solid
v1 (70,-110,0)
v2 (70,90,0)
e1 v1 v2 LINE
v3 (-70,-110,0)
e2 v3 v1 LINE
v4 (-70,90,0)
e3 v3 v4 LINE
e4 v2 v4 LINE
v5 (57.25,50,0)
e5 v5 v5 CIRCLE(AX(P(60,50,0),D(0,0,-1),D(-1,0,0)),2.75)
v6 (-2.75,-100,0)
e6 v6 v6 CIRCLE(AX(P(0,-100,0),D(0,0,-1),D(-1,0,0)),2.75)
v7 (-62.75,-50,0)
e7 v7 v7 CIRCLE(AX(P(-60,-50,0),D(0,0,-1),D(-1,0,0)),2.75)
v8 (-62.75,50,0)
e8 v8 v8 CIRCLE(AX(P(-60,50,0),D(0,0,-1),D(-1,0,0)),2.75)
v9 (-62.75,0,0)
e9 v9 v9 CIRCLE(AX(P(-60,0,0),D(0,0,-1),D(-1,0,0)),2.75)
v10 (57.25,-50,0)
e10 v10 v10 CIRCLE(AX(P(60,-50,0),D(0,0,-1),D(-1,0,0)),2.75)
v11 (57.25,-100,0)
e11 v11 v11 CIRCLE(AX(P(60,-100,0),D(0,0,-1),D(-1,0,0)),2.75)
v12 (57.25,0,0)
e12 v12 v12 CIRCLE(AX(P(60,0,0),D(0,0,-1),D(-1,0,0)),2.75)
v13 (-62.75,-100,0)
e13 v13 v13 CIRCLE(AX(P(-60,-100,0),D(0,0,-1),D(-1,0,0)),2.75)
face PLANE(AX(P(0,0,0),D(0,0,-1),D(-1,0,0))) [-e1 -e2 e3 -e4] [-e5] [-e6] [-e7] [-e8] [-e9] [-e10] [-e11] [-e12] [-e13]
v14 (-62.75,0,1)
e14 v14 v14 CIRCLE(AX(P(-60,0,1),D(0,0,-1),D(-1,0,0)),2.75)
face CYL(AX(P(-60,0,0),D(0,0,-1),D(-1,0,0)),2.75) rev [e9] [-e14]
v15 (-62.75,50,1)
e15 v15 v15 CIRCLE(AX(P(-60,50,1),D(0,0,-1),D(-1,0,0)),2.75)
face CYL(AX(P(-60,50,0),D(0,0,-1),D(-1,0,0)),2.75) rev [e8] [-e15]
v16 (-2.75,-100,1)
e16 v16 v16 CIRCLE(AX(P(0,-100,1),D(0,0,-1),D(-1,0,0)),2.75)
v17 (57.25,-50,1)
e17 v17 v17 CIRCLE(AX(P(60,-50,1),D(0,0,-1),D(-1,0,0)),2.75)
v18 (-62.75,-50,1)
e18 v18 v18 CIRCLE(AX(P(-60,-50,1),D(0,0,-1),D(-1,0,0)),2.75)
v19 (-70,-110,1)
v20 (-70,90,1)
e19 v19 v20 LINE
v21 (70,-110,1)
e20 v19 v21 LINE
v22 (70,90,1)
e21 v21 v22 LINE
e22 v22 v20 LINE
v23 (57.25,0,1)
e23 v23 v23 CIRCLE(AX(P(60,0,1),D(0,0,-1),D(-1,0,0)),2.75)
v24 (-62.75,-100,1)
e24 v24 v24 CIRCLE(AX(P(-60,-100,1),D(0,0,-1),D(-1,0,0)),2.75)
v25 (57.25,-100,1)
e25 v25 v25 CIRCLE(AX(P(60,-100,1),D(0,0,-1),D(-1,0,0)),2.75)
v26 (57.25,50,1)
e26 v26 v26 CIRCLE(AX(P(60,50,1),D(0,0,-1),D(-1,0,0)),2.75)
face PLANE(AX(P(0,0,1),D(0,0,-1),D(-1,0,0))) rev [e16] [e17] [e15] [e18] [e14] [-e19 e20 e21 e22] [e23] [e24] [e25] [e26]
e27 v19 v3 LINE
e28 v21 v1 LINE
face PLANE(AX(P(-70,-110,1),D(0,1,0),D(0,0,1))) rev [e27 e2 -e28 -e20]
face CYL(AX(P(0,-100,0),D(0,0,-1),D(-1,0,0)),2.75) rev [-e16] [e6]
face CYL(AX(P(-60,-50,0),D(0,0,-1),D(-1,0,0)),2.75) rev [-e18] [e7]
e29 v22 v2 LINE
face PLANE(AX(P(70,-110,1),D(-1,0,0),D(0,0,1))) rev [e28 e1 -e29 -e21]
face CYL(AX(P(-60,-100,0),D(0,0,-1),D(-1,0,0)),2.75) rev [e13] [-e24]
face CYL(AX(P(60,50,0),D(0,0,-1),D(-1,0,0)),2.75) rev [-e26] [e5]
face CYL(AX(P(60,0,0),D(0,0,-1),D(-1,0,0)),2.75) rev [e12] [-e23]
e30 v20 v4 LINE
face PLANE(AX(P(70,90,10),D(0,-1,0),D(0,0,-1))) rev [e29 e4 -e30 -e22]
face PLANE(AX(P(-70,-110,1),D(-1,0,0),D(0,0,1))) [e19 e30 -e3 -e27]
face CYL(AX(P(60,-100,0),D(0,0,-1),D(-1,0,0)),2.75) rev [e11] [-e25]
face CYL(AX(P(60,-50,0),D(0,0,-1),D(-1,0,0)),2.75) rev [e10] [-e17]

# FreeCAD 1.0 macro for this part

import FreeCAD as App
import Part
import Sketcher

V = App.Vector

doc = App.newDocument("Part")
body = doc.addObject("PartDesign::Body", "Body")

# Sketch on XY plane
sketch1 = body.newObject("Sketcher::SketchObject", "Sketch")
sketch1.AttachmentSupport = (doc.getObject("XY_Plane"), [""])
sketch1.MapMode = "FlatFace"
sketch1.addGeometry([
    Part.LineSegment(V(-70, 110, 0), V(-70, -110, 0)),
    Part.LineSegment(V(-70, -110, 0), V(70, -110, 0)),
    Part.LineSegment(V(70, -110, 0), V(70, 110, 0)),
    Part.LineSegment(V(70, 110, 0), V(-70, 110, 0)),
], False)
sketch1.addConstraint([
    Sketcher.Constraint("Coincident", 0, 2, 1, 1),
    Sketcher.Constraint("Coincident", 1, 2, 2, 1),
    Sketcher.Constraint("Coincident", 2, 2, 3, 1),
    Sketcher.Constraint("Coincident", 3, 2, 0, 1),
    Sketcher.Constraint("Vertical", 0),
    Sketcher.Constraint("Horizontal", 1),
    Sketcher.Constraint("Vertical", 2),
    Sketcher.Constraint("Horizontal", 3),
    Sketcher.Constraint("Symmetric", 0, 2, 2, 2, -1, 1),
    Sketcher.Constraint("DistanceX", 1, 1, 1, 2, 140.0),
    Sketcher.Constraint("DistanceY", 0, 2, 0, 1, 220.0),
])
pad1 = body.newObject("PartDesign::Pad", "Pad")
pad1.Profile = sketch1
pad1.Length = 1

# Sketch on XY plane
sketch2 = body.newObject("Sketcher::SketchObject", "Sketch001")
sketch2.AttachmentSupport = (doc.getObject("XY_Plane"), [""])
sketch2.MapMode = "FlatFace"
sketch2.addGeometry([
    Part.Circle(V(60, 100, 0), V(0, 0, 1), 2.75),  # 0
    Part.Circle(V(0, 100, 0), V(0, 0, 1), 2.75),  # 1
    Part.Circle(V(-60, 100, 0), V(0, 0, 1), 2.75),  # 2
    Part.Circle(V(-60, 50, 0), V(0, 0, 1), 2.75),  # 3
    Part.Circle(V(-60, -50, 0), V(0, 0, 1), 2.75),  # 4
    Part.Circle(V(-60, 0, 0), V(0, 0, 1), 2.75),  # 5
    Part.Circle(V(-60, -100, 0), V(0, 0, 1), 2.75),  # 6
    Part.Circle(V(60, 50, 0), V(0, 0, 1), 2.75),  # 7
    Part.Circle(V(60, -50, 0), V(0, 0, 1), 2.75),  # 8
    Part.Circle(V(60, 0, 0), V(0, 0, 1), 2.75),  # 9
    Part.Circle(V(60, -100, 0), V(0, 0, 1), 2.75),  # 10
    Part.Circle(V(0, -100, 0), V(0, 0, 1), 2.75),  # 11
], False)
sketch2.addConstraint([
    Sketcher.Constraint("Equal", 0, 1),
    Sketcher.Constraint("Equal", 1, 2),
    Sketcher.Constraint("Equal", 2, 3),
    Sketcher.Constraint("Equal", 3, 4),
    Sketcher.Constraint("Equal", 4, 5),
    Sketcher.Constraint("Equal", 5, 6),
    Sketcher.Constraint("Equal", 6, 7),
    Sketcher.Constraint("Equal", 7, 8),
    Sketcher.Constraint("Equal", 8, 9),
    Sketcher.Constraint("Equal", 9, 10),
    Sketcher.Constraint("Equal", 10, 11),
    Sketcher.Constraint("Symmetric", 0, 3, 6, 3, -1, 1),
    Sketcher.Constraint("Symmetric", 4, 3, 7, 3, -1, 1),
    Sketcher.Constraint("Symmetric", 3, 3, 8, 3, -1, 1),
    Sketcher.Constraint("Symmetric", 5, 3, 9, 3, -1, 1),
    Sketcher.Constraint("Symmetric", 2, 3, 10, 3, -1, 1),
    Sketcher.Constraint("Symmetric", 1, 3, 11, 3, -1, 1),
    Sketcher.Constraint("Symmetric", 0, 3, 2, 3, -2),
    Sketcher.Constraint("Symmetric", 3, 3, 7, 3, -2),
    Sketcher.Constraint("PointOnObject", 1, 3, -2),
    Sketcher.Constraint("PointOnObject", 5, 3, -1),
    Sketcher.Constraint("Horizontal", 0, 3, 1, 3),
    Sketcher.Constraint("Vertical", 2, 3, 3, 3),
    Sketcher.Constraint("Vertical", 4, 3, 5, 3),
    Sketcher.Constraint("Diameter", 0, 5.5),
    Sketcher.Constraint("DistanceX", -1, 1, 0, 3, 60.0),
    Sketcher.Constraint("DistanceY", -1, 1, 0, 3, 100.0),
    Sketcher.Constraint("DistanceY", -1, 1, 3, 3, 50.0),
])
doc.recompute()
hole = body.newObject("PartDesign::Hole", "Hole")
hole.Profile = sketch2
hole.ThreadType = "None"
hole.Diameter = 5.5
hole.DepthType = "ThroughAll"
hole.Reversed = True

# Sketch on XY plane
sketch3 = body.newObject("Sketcher::SketchObject", "Sketch002")
sketch3.AttachmentSupport = (doc.getObject("XY_Plane"), [""])
sketch3.MapMode = "FlatFace"
sketch3.addGeometry([
    Part.LineSegment(V(70, 110, 0), V(70, 90, 0)),
    Part.LineSegment(V(70, 90, 0), V(-70, 90, 0)),
    Part.LineSegment(V(-70, 90, 0), V(-70, 110, 0)),
    Part.LineSegment(V(-70, 110, 0), V(70, 110, 0)),
], False)
sketch3.addConstraint([
    Sketcher.Constraint("Coincident", 0, 2, 1, 1),
    Sketcher.Constraint("Coincident", 1, 2, 2, 1),
    Sketcher.Constraint("Coincident", 2, 2, 3, 1),
    Sketcher.Constraint("Coincident", 3, 2, 0, 1),
    Sketcher.Constraint("Vertical", 0),
    Sketcher.Constraint("Horizontal", 1),
    Sketcher.Constraint("Vertical", 2),
    Sketcher.Constraint("Horizontal", 3),
    Sketcher.Constraint("DistanceX", 1, 2, 1, 1, 140.0),
    Sketcher.Constraint("DistanceY", 0, 2, 0, 1, 20.0),
    Sketcher.Constraint("DistanceX", -1, 1, 0, 2, 70.0),
    Sketcher.Constraint("DistanceY", -1, 1, 0, 2, 90.0),
])
pocket1 = body.newObject("PartDesign::Pocket", "Pocket")
pocket1.Profile = sketch3
pocket1.Length = 10
pocket1.Reversed = True

doc.recompute()
